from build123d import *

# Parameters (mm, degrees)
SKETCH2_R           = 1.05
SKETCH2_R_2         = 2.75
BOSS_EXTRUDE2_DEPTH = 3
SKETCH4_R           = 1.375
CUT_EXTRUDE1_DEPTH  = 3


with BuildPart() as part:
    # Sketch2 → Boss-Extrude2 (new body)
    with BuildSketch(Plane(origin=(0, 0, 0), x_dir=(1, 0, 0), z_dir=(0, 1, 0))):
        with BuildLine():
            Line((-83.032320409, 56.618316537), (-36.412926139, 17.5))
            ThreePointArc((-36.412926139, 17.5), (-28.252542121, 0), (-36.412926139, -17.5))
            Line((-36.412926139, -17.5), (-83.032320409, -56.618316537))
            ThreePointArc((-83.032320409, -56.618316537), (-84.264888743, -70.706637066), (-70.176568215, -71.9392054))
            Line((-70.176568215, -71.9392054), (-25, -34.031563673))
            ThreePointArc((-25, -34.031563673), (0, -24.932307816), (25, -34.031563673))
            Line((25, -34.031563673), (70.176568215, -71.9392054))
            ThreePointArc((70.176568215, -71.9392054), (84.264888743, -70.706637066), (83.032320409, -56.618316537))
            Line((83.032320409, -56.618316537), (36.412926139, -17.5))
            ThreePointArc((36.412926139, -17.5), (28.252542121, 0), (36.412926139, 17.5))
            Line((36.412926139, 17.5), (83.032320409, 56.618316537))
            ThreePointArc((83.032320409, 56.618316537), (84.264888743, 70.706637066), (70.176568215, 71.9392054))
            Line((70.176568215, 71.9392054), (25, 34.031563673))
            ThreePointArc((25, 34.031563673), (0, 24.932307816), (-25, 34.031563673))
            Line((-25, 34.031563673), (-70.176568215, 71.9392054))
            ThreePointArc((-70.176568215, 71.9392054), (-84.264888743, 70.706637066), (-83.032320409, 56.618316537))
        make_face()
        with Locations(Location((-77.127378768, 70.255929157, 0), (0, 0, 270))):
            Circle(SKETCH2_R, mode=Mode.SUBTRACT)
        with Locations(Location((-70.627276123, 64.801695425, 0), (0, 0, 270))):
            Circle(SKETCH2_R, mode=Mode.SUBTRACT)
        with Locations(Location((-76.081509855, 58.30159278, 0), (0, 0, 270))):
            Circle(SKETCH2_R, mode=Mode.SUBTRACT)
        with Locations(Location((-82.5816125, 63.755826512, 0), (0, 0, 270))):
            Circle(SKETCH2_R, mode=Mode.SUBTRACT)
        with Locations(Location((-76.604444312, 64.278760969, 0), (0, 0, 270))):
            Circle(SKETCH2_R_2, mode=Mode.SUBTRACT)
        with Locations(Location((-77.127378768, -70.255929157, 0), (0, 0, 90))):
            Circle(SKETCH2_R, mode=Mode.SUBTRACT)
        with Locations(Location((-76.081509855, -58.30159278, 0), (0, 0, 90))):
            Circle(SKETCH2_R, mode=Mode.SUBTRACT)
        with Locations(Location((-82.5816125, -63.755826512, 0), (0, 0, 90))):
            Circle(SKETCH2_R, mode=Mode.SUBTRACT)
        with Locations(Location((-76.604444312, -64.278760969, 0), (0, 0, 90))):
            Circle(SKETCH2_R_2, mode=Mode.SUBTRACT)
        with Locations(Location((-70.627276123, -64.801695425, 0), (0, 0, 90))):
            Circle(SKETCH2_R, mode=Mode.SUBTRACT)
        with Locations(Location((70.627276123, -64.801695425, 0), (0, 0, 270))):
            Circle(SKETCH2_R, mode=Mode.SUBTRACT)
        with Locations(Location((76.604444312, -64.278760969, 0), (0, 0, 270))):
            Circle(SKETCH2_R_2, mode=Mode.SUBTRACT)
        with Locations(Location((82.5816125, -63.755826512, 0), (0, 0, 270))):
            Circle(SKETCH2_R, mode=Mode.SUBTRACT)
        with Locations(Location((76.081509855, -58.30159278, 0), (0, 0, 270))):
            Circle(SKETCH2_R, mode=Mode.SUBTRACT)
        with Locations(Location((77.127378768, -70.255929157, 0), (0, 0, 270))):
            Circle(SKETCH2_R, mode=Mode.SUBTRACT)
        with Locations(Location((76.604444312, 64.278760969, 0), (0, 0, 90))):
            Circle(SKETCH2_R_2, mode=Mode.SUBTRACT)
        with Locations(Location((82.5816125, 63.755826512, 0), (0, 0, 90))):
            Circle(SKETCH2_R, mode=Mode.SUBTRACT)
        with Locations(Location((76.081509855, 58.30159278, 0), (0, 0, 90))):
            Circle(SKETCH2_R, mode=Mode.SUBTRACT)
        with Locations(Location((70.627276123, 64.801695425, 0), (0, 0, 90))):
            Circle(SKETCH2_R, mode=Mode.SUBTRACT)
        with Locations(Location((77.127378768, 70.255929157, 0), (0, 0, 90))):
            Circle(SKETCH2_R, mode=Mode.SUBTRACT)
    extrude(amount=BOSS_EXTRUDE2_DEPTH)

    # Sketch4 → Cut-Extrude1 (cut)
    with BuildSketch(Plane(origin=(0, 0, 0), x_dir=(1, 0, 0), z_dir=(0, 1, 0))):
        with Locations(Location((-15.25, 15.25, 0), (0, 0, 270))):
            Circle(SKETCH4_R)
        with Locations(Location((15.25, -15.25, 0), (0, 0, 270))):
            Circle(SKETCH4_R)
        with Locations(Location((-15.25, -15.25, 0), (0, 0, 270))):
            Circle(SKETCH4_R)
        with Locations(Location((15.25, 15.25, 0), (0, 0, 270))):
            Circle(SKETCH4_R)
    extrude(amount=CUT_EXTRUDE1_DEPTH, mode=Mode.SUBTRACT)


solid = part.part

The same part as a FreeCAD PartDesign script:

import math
import FreeCAD as App
import Part
import Sketcher
from FreeCAD import Vector
Q = App.Units.Quantity

doc = App.newDocument("Part")
body = doc.addObject("PartDesign::Body", "Body")

# Sketch on XZ plane
sketch1 = doc.addObject("Sketcher::SketchObject", "Sketch")
body.addObject(sketch1)
sketch1.AttachmentSupport = (doc.XZ_Plane, [""])
sketch1.MapMode = "FlatFace"
sketch1.addGeometry([
    Part.LineSegment(Vector(-83, -56.6, 0), Vector(-36.4, -17.5, 0)),  # 0
    Part.ArcOfCircle(Part.Circle(Vector(-51.1, 0, 0), Vector(0, 0, 1), 22.8), math.radians(-50), math.radians(50)),  # 1
    Part.LineSegment(Vector(-36.4, 17.5, 0), Vector(-83, 56.6, 0)),  # 2
    Part.ArcOfCircle(Part.Circle(Vector(-76.6, 64.3, 0), Vector(0, 0, 1), 10), math.radians(50), math.radians(230)),  # 3
    Part.LineSegment(Vector(-70.2, 71.9, 0), Vector(-25, 34, 0)),  # 4
    Part.ArcOfCircle(Part.Circle(Vector(0, 63.8, 0), Vector(0, 0, 1), 38.9), math.radians(-130), math.radians(-50)),  # 5
    Part.LineSegment(Vector(25, 34, 0), Vector(70.2, 71.9, 0)),  # 6
    Part.ArcOfCircle(Part.Circle(Vector(76.6, 64.3, 0), Vector(0, 0, 1), 10), math.radians(-50), math.radians(130)),  # 7
    Part.LineSegment(Vector(83, 56.6, 0), Vector(36.4, 17.5, 0)),  # 8
    Part.ArcOfCircle(Part.Circle(Vector(51.1, 0, 0), Vector(0, 0, 1), 22.8), math.radians(130), math.radians(230)),  # 9
    Part.LineSegment(Vector(36.4, -17.5, 0), Vector(83, -56.6, 0)),  # 10
    Part.ArcOfCircle(Part.Circle(Vector(76.6, -64.3, 0), Vector(0, 0, 1), 10), math.radians(-130), math.radians(50)),  # 11
    Part.LineSegment(Vector(70.2, -71.9, 0), Vector(25, -34, 0)),  # 12
    Part.ArcOfCircle(Part.Circle(Vector(0, -63.8, 0), Vector(0, 0, 1), 38.9), math.radians(50), math.radians(130)),  # 13
    Part.LineSegment(Vector(-25, -34, 0), Vector(-70.2, -71.9, 0)),  # 14
    Part.ArcOfCircle(Part.Circle(Vector(-76.6, -64.3, 0), Vector(0, 0, 1), 10), math.radians(130), math.radians(310)),  # 15
    Part.Circle(Vector(-77.1, 70.3, 0), Vector(0, 0, 1), 1.1),  # 16
    Part.Circle(Vector(-82.6, 63.8, 0), Vector(0, 0, 1), 1.1),  # 17
    Part.Circle(Vector(-76.6, 64.3, 0), Vector(0, 0, 1), 2.8),  # 18
    Part.Circle(Vector(-70.6, 64.8, 0), Vector(0, 0, 1), 1.1),  # 19
    Part.Circle(Vector(-76.1, 58.3, 0), Vector(0, 0, 1), 1.1),  # 20
    Part.Circle(Vector(70.6, 64.8, 0), Vector(0, 0, 1), 1.1),  # 21
    Part.Circle(Vector(77.1, 70.3, 0), Vector(0, 0, 1), 1.1),  # 22
    Part.Circle(Vector(76.6, 64.3, 0), Vector(0, 0, 1), 2.8),  # 23
    Part.Circle(Vector(82.6, 63.8, 0), Vector(0, 0, 1), 1.1),  # 24
    Part.Circle(Vector(76.1, 58.3, 0), Vector(0, 0, 1), 1.1),  # 25
    Part.Circle(Vector(-76.1, -58.3, 0), Vector(0, 0, 1), 1.1),  # 26
    Part.Circle(Vector(-82.6, -63.8, 0), Vector(0, 0, 1), 1.1),  # 27
    Part.Circle(Vector(-76.6, -64.3, 0), Vector(0, 0, 1), 2.8),  # 28
    Part.Circle(Vector(-77.1, -70.3, 0), Vector(0, 0, 1), 1.1),  # 29
    Part.Circle(Vector(-70.6, -64.8, 0), Vector(0, 0, 1), 1.1),  # 30
    Part.Circle(Vector(76.1, -58.3, 0), Vector(0, 0, 1), 1.1),  # 31
    Part.Circle(Vector(70.6, -64.8, 0), Vector(0, 0, 1), 1.1),  # 32
    Part.Circle(Vector(76.6, -64.3, 0), Vector(0, 0, 1), 2.8),  # 33
    Part.Circle(Vector(82.6, -63.8, 0), Vector(0, 0, 1), 1.1),  # 34
    Part.Circle(Vector(77.1, -70.3, 0), Vector(0, 0, 1), 1.1),  # 35
], False)
sketch1.addConstraint([
    Sketcher.Constraint("Tangent", 0, 2, 1, 1),
    Sketcher.Constraint("Tangent", 1, 2, 2, 1),
    Sketcher.Constraint("Tangent", 2, 2, 3, 2),
    Sketcher.Constraint("Tangent", 3, 1, 4, 1),
    Sketcher.Constraint("Tangent", 4, 2, 5, 1),
    Sketcher.Constraint("Tangent", 5, 2, 6, 1),
    Sketcher.Constraint("Tangent", 6, 2, 7, 2),
    Sketcher.Constraint("Tangent", 7, 1, 8, 1),
    Sketcher.Constraint("Tangent", 8, 2, 9, 1),
    Sketcher.Constraint("Tangent", 9, 2, 10, 1),
    Sketcher.Constraint("Tangent", 10, 2, 11, 2),
    Sketcher.Constraint("Tangent", 11, 1, 12, 1),
    Sketcher.Constraint("Tangent", 12, 2, 13, 1),
    Sketcher.Constraint("Tangent", 13, 2, 14, 1),
    Sketcher.Constraint("Tangent", 14, 2, 15, 2),
    Sketcher.Constraint("Tangent", 15, 1, 0, 1),
    Sketcher.Constraint("Coincident", 18, 3, 3, 3),
    Sketcher.Constraint("Coincident", 23, 3, 7, 3),
    Sketcher.Constraint("Coincident", 28, 3, 15, 3),
    Sketcher.Constraint("Coincident", 33, 3, 11, 3),
    Sketcher.Constraint("Equal", 3, 7),
    Sketcher.Constraint("Equal", 1, 9),
    Sketcher.Constraint("Equal", 7, 11),
    Sketcher.Constraint("Equal", 5, 13),
    Sketcher.Constraint("Equal", 11, 15),
    Sketcher.Constraint("Equal", 16, 17),
    Sketcher.Constraint("Equal", 17, 19),
    Sketcher.Constraint("Equal", 19, 20),
    Sketcher.Constraint("Equal", 20, 21),
    Sketcher.Constraint("Equal", 21, 22),
    Sketcher.Constraint("Equal", 18, 23),
    Sketcher.Constraint("Equal", 22, 24),
    Sketcher.Constraint("Equal", 24, 25),
    Sketcher.Constraint("Equal", 25, 26),
    Sketcher.Constraint("Equal", 26, 27),
    Sketcher.Constraint("Equal", 23, 28),
    Sketcher.Constraint("Equal", 27, 29),
    Sketcher.Constraint("Equal", 29, 30),
    Sketcher.Constraint("Equal", 30, 31),
    Sketcher.Constraint("Equal", 31, 32),
    Sketcher.Constraint("Equal", 28, 33),
    Sketcher.Constraint("Equal", 32, 34),
    Sketcher.Constraint("Equal", 34, 35),
    Sketcher.Constraint("Symmetric", 1, 3, 9, 3, -1, 1),
    Sketcher.Constraint("Symmetric", 3, 3, 11, 3, -1, 1),
    Sketcher.Constraint("Symmetric", 5, 3, 13, 3, -1, 1),
    Sketcher.Constraint("Symmetric", 7, 3, 15, 3, -1, 1),
    Sketcher.Constraint("Symmetric", 25, 3, 26, 3, -1, 1),
    Sketcher.Constraint("Symmetric", 24, 3, 27, 3, -1, 1),
    Sketcher.Constraint("Symmetric", 22, 3, 29, 3, -1, 1),
    Sketcher.Constraint("Symmetric", 21, 3, 30, 3, -1, 1),
    Sketcher.Constraint("Symmetric", 20, 3, 31, 3, -1, 1),
    Sketcher.Constraint("Symmetric", 19, 3, 32, 3, -1, 1),
    Sketcher.Constraint("Symmetric", 17, 3, 34, 3, -1, 1),
    Sketcher.Constraint("Symmetric", 16, 3, 35, 3, -1, 1),
    Sketcher.Constraint("Symmetric", 3, 3, 7, 3, -2),
    Sketcher.Constraint("Symmetric", 19, 3, 21, 3, -2),
    Sketcher.Constraint("Symmetric", 16, 3, 22, 3, -2),
    Sketcher.Constraint("Symmetric", 17, 3, 24, 3, -2),
    Sketcher.Constraint("Symmetric", 20, 3, 25, 3, -2),
    Sketcher.Constraint("PointOnObject", 1, 3, -1),
    Sketcher.Constraint("PointOnObject", 5, 3, -2),
    Sketcher.Constraint("Parallel", 2, 4),
    Sketcher.Constraint("Radius", 3, Q("10 mm")),
    Sketcher.Constraint("Diameter", 16, Q("2.1 mm")),
    Sketcher.Constraint("Diameter", 18, Q("5.5 mm")),
    Sketcher.Constraint("Angle", 0, Q("40 deg")),
    Sketcher.Constraint("DistanceX", 4, 2, -1, 1, Q("25 mm")),
    Sketcher.Constraint("DistanceY", 0, 2, 1, 2, Q("35 mm")),
    Sketcher.Constraint("Distance", 4, Q("58.973821 mm")),
    Sketcher.Constraint("DistanceX", 1, 3, -1, 1, Q("51.09717 mm")),
    Sketcher.Constraint("DistanceX", 16, 3, -1, 1, Q("77.127379 mm")),
    Sketcher.Constraint("DistanceY", -1, 1, 16, 3, Q("70.255929 mm")),
    Sketcher.Constraint("DistanceX", 20, 3, -1, 1, Q("76.08151 mm")),
    Sketcher.Constraint("DistanceX", 17, 3, 3, 3, Q("5.977168 mm")),
    Sketcher.Constraint("DistanceX", 18, 3, 19, 3, Q("5.977168 mm")),
    Sketcher.Constraint("DistanceY", 17, 3, 19, 3, Q("1.045869 mm")),
    Sketcher.Constraint("DistanceY", 20, 3, 3, 3, Q("5.977168 mm")),
    Sketcher.Constraint("DistanceY", 5, 3, 21, 3, Q("0.976292 mm")),
])
pad1 = doc.addObject("PartDesign::Pad", "Pad")
body.addObject(pad1)
pad1.Profile = sketch1
pad1.Length = 3
pad1.Reversed = True

# Sketch on XZ plane
sketch2 = doc.addObject("Sketcher::SketchObject", "Sketch001")
body.addObject(sketch2)
sketch2.AttachmentSupport = (doc.XZ_Plane, [""])
sketch2.MapMode = "FlatFace"
sketch2.addGeometry([
    Part.Circle(Vector(-15.2, -15.2, 0), Vector(0, 0, 1), 1.4),
    Part.Circle(Vector(15.2, 15.2, 0), Vector(0, 0, 1), 1.4),
    Part.Circle(Vector(-15.2, 15.2, 0), Vector(0, 0, 1), 1.4),
    Part.Circle(Vector(15.2, -15.2, 0), Vector(0, 0, 1), 1.4),
], False)
sketch2.addConstraint([
    Sketcher.Constraint("Equal", 0, 1),
    Sketcher.Constraint("Equal", 1, 2),
    Sketcher.Constraint("Equal", 2, 3),
    Sketcher.Constraint("Symmetric", 0, 3, 1, 3, -1, 1),
    Sketcher.Constraint("Symmetric", 2, 3, 3, 3, -1, 1),
    Sketcher.Constraint("Symmetric", 1, 3, 2, 3, -2),
    Sketcher.Constraint("Diameter", 0, Q("2.75 mm")),
    Sketcher.Constraint("DistanceX", 0, 3, 1, 3, Q("30.5 mm")),
    Sketcher.Constraint("DistanceY", 0, 3, 1, 3, Q("30.5 mm")),
])
pocket1 = doc.addObject("PartDesign::Pocket", "Pocket")
body.addObject(pocket1)
pocket1.Profile = sketch2
pocket1.Length = 3

doc.recompute()
